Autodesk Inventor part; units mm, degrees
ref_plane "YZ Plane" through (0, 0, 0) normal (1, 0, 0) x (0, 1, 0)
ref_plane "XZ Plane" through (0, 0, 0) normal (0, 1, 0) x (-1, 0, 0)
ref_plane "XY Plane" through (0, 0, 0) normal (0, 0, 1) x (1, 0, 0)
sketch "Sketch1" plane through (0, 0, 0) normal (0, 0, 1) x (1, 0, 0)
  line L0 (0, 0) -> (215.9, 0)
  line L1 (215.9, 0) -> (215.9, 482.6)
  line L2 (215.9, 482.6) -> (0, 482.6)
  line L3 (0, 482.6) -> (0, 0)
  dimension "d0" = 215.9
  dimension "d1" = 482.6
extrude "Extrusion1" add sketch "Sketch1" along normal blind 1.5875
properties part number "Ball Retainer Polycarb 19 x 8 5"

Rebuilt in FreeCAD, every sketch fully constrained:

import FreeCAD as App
import Part
import Sketcher
Q = App.Units.Quantity

doc = App.newDocument("Part")
params = doc.addObject("Spreadsheet::Sheet", "Params")
for row, (alias, value) in enumerate([
    ("sketch1_height", "19 in"),
    ("sketch1_width", "8.5 in"),
    ("pad1_length", "0.0625 in"),
], start=1):
    params.set(f"A{row}", alias)
    params.set(f"B{row}", "=" + value)
    params.setAlias(f"B{row}", alias)

body = doc.addObject("PartDesign::Body", "Body")

sketch1 = body.newObject("Sketcher::SketchObject", "Sketch")
sketch1.AttachmentSupport = (doc.getObject("XY_Plane"), [""])
sketch1.MapMode = "FlatFace"
sketch1.addGeometry(Part.LineSegment(App.Vector(0, 482.6, 0), App.Vector(0, 0, 0)), False)
sketch1.addGeometry(Part.LineSegment(App.Vector(0, 0, 0), App.Vector(215.9, 0, 0)), False)
sketch1.addGeometry(Part.LineSegment(App.Vector(215.9, 0, 0), App.Vector(215.9, 482.6, 0)), False)
sketch1.addGeometry(Part.LineSegment(App.Vector(215.9, 482.6, 0), App.Vector(0, 482.6, 0)), False)
sketch1.addConstraint(Sketcher.Constraint("Coincident", 0, 2, 1, 1))
sketch1.addConstraint(Sketcher.Constraint("Coincident", 1, 2, 2, 1))
sketch1.addConstraint(Sketcher.Constraint("Coincident", 2, 2, 3, 1))
sketch1.addConstraint(Sketcher.Constraint("Coincident", 3, 2, 0, 1))
sketch1.addConstraint(Sketcher.Constraint("Vertical", 0))
sketch1.addConstraint(Sketcher.Constraint("Horizontal", 1))
sketch1.addConstraint(Sketcher.Constraint("Vertical", 2))
sketch1.addConstraint(Sketcher.Constraint("Horizontal", 3))
sketch1.addConstraint(Sketcher.Constraint("Coincident", 0, 2, -1, 1))
sketch1.addConstraint(Sketcher.Constraint("DistanceY", 0, 2, 0, 1, Q("19 in")))
sketch1.addConstraint(Sketcher.Constraint("DistanceX", 1, 1, 1, 2, Q("8.5 in")))
sketch1.setExpression("Constraints[9]", "Params.sketch1_height")
sketch1.setExpression("Constraints[10]", "Params.sketch1_width")
pad1 = body.newObject("PartDesign::Pad", "Pad")
pad1.Profile = sketch1
pad1.setExpression("Length", "Params.pad1_length")

doc.recompute()
